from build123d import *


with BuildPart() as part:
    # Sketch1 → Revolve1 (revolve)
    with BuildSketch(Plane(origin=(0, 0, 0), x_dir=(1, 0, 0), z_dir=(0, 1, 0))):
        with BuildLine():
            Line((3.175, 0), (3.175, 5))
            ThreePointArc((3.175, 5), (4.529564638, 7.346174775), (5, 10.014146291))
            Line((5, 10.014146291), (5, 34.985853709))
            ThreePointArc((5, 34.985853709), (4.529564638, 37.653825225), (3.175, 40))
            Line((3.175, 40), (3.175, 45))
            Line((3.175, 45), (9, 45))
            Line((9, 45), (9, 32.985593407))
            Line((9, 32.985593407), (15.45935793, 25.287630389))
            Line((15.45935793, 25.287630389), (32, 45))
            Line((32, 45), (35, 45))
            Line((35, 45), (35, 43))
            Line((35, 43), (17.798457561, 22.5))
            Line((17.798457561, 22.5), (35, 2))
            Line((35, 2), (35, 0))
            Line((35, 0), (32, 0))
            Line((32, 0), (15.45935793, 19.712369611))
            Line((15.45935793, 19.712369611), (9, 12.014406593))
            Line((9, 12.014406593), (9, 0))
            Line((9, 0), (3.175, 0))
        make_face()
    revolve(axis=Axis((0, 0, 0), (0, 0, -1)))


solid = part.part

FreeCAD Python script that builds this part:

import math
import FreeCAD as App
import Part
import Sketcher
Q = App.Units.Quantity

doc = App.newDocument("Part")
body = doc.addObject("PartDesign::Body", "Body")

sketch1 = body.newObject("Sketcher::SketchObject", "Sketch")
sketch1.AttachmentSupport = (doc.getObject("XZ_Plane"), [""])
sketch1.MapMode = "FlatFace"
sketch1.addGeometry([
    Part.LineSegment(App.Vector(3.175, -5, 0), App.Vector(3.175, 0, 0)),
    Part.LineSegment(App.Vector(3.175, 0, 0), App.Vector(9, 0, 0)),
    Part.LineSegment(App.Vector(9, 0, 0), App.Vector(9, -12.014407, 0)),
    Part.LineSegment(App.Vector(9, -12.014407, 0), App.Vector(15.459358, -19.71237, 0)),
    Part.LineSegment(App.Vector(15.459358, -19.71237, 0), App.Vector(32, 0, 0)),
    Part.LineSegment(App.Vector(32, 0, 0), App.Vector(35, 0, 0)),
    Part.LineSegment(App.Vector(35, 0, 0), App.Vector(35, -2, 0)),
    Part.LineSegment(App.Vector(35, -2, 0), App.Vector(17.798458, -22.5, 0)),
    Part.LineSegment(App.Vector(17.798458, -22.5, 0), App.Vector(35, -43, 0)),
    Part.LineSegment(App.Vector(35, -43, 0), App.Vector(35, -45, 0)),
    Part.LineSegment(App.Vector(35, -45, 0), App.Vector(32, -45, 0)),
    Part.LineSegment(App.Vector(32, -45, 0), App.Vector(15.459358, -25.28763, 0)),
    Part.LineSegment(App.Vector(15.459358, -25.28763, 0), App.Vector(9, -32.985593, 0)),
    Part.LineSegment(App.Vector(9, -32.985593, 0), App.Vector(9, -45, 0)),
    Part.LineSegment(App.Vector(9, -45, 0), App.Vector(3.175, -45, 0)),
    Part.LineSegment(App.Vector(3.175, -45, 0), App.Vector(3.175, -40, 0)),
    Part.ArcOfCircle(Part.Circle(App.Vector(-2.800627, -34.985854, 0), App.Vector(0, 0, 1), 7.800627), math.radians(-40), math.radians(0)),
    Part.LineSegment(App.Vector(5, -34.985854, 0), App.Vector(5, -10.014146, 0)),
    Part.ArcOfCircle(Part.Circle(App.Vector(-2.800627, -10.014146, 0), App.Vector(0, 0, 1), 7.800627), math.radians(0), math.radians(40)),
], False)
sketch1.addConstraint([
    Sketcher.Constraint("Coincident", 0, 2, 1, 1),
    Sketcher.Constraint("Coincident", 1, 2, 2, 1),
    Sketcher.Constraint("Coincident", 2, 2, 3, 1),
    Sketcher.Constraint("Coincident", 3, 2, 4, 1),
    Sketcher.Constraint("Coincident", 4, 2, 5, 1),
    Sketcher.Constraint("Coincident", 5, 2, 6, 1),
    Sketcher.Constraint("Coincident", 6, 2, 7, 1),
    Sketcher.Constraint("Coincident", 7, 2, 8, 1),
    Sketcher.Constraint("Coincident", 8, 2, 9, 1),
    Sketcher.Constraint("Coincident", 9, 2, 10, 1),
    Sketcher.Constraint("Coincident", 10, 2, 11, 1),
    Sketcher.Constraint("Coincident", 11, 2, 12, 1),
    Sketcher.Constraint("Coincident", 12, 2, 13, 1),
    Sketcher.Constraint("Coincident", 13, 2, 14, 1),
    Sketcher.Constraint("Coincident", 14, 2, 15, 1),
    Sketcher.Constraint("Coincident", 15, 2, 16, 1),
    Sketcher.Constraint("Tangent", 16, 2, 17, 1),
    Sketcher.Constraint("Tangent", 17, 2, 18, 1),
    Sketcher.Constraint("Coincident", 18, 2, 0, 1),
    Sketcher.Constraint("Vertical", 0),
    Sketcher.Constraint("Horizontal", 1),
    Sketcher.Constraint("Vertical", 2),
    Sketcher.Constraint("Horizontal", 5),
    Sketcher.Constraint("Vertical", 6),
    Sketcher.Constraint("Vertical", 9),
    Sketcher.Constraint("Horizontal", 10),
    Sketcher.Constraint("Vertical", 13),
    Sketcher.Constraint("Horizontal", 14),
    Sketcher.Constraint("Vertical", 15),
    Sketcher.Constraint("Vertical", 17),
    Sketcher.Constraint("Equal", 16, 18),
    Sketcher.Constraint("PointOnObject", 0, 2, -1),
    Sketcher.Constraint("PointOnObject", 4, 2, -1),
    Sketcher.Constraint("Parallel", 4, 7),
    Sketcher.Constraint("Parallel", 3, 8),
    Sketcher.Constraint("Parallel", 8, 11),
    Sketcher.Constraint("Parallel", 7, 12),
    Sketcher.Constraint("Horizontal", 10, 2, 13, 2),
    Sketcher.Constraint("Vertical", 6, 2, 8, 2),
    Sketcher.Constraint("Vertical", 4, 2, 10, 2),
    Sketcher.Constraint("Vertical", 3, 2, 11, 2),
    Sketcher.Constraint("Vertical", 2, 2, 12, 2),
    Sketcher.Constraint("Vertical", 0, 2, 14, 2),
    Sketcher.Constraint("Equal", 6, 9),
    Sketcher.Constraint("Equal", 2, 13),
    Sketcher.Constraint("Equal", 0, 15),
    Sketcher.Constraint("DistanceX", 5, 1, 5, 2, 3.0),
    Sketcher.Constraint("DistanceY", 0, 1, 0, 2, 5.0),
    Sketcher.Constraint("DistanceY", 6, 2, 6, 1, 2.0),
    Sketcher.Constraint("Angle", 3, Q("-50 deg")),
    Sketcher.Constraint("DistanceX", -1, 1, 1, 2, 9.0),
    Sketcher.Constraint("DistanceX", -1, 1, 4, 2, 32.0),
    Sketcher.Constraint("DistanceY", 8, 2, -1, 1, 43.0),
    Sketcher.Constraint("DistanceX", -1, 1, 16, 2, 5.0),
    Sketcher.Constraint("DistanceX", 1, 1, 1, 2, 5.825),
    Sketcher.Constraint("Radius", 16, 7.800627),
    Sketcher.Constraint("DistanceX", 3, 2, 7, 2, 2.3391),
])
revolution = body.newObject("PartDesign::Revolution", "Revolution")
revolution.Profile = sketch1
revolution.ReferenceAxis = (sketch1, ["V_Axis"])
revolution.Angle = 360

doc.recompute()
